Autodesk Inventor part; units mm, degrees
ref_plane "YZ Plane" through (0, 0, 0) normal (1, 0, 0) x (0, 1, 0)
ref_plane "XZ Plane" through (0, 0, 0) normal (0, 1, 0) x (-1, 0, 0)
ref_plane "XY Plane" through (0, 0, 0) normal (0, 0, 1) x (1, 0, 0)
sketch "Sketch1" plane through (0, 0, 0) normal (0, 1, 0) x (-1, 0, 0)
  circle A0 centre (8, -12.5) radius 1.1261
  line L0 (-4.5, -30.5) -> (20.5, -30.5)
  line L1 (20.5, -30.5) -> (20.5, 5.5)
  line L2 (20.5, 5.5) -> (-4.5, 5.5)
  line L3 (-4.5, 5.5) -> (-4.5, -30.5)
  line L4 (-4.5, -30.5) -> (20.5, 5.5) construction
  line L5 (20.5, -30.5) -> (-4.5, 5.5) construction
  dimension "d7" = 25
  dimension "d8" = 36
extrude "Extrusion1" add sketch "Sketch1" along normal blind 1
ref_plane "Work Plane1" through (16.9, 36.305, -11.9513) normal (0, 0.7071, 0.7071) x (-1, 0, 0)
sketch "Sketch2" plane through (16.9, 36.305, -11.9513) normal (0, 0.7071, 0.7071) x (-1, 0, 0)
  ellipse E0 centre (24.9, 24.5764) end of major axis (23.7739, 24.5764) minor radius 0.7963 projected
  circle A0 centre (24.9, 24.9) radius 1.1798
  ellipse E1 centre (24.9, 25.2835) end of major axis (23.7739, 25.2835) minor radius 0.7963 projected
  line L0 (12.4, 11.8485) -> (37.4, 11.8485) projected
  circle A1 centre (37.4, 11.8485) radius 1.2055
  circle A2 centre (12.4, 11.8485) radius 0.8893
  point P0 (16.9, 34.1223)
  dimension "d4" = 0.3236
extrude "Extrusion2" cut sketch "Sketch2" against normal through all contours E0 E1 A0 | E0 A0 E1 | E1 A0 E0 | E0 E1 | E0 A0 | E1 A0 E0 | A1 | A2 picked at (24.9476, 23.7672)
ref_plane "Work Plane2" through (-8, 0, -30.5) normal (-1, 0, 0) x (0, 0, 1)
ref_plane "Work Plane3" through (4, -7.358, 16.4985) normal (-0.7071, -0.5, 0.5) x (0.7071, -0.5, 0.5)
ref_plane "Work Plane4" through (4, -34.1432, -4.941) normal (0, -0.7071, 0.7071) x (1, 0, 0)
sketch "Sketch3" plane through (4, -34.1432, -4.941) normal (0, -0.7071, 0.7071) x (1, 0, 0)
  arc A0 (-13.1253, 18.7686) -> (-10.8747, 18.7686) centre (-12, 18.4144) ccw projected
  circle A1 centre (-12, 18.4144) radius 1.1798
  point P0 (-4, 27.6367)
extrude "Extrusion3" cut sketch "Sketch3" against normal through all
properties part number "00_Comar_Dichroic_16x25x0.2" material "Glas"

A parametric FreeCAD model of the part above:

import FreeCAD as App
import Part
import Sketcher

V = App.Vector


def add_polygon(sketch, points):
    """Adds a closed chain of lines whose ends are joined by coincident constraints."""
    first, n = sketch.GeometryCount, len(points)
    for a, b in zip(points, points[1:] + points[:1]):
        sketch.addGeometry(Part.LineSegment(App.Vector(*a, 0), App.Vector(*b, 0)), False)
    for i in range(n):
        sketch.addConstraint(Sketcher.Constraint("Coincident", first + i, 2, first + (i + 1) % n, 1))

doc = App.newDocument("Part")
body = doc.addObject("PartDesign::Body", "Body")

# Sketch on XZ plane
sketch1 = doc.addObject("Sketcher::SketchObject", "Sketch")
body.addObject(sketch1)
sketch1.AttachmentSupport = (doc.XZ_Plane, [""])
sketch1.MapMode = "FlatFace"
add_polygon(sketch1, [(4.5, 5.5), (4.5, -30.5), (-20.5, -30.5), (-20.5, 5.5)])  # lines 0-3
sketch1.addGeometry(Part.Circle(V(-8, -12.5, 0), V(0, 0, 1), 1.1), False)  # 4
sketch1.addConstraint([
    Sketcher.Constraint("Vertical", 0),
    Sketcher.Constraint("Horizontal", 1),
    Sketcher.Constraint("Vertical", 2),
    Sketcher.Constraint("Horizontal", 3),
    Sketcher.Constraint("DistanceX", 1, 2, 1, 1, 25.0),
    Sketcher.Constraint("DistanceY", 0, 2, 0, 1, 36.0),
    Sketcher.Constraint("DistanceX", 4, 3, -1, 1, 8.0),
    Sketcher.Constraint("DistanceY", 0, 2, 4, 3, 18.0),
    Sketcher.Constraint("Diameter", 4, 2.2522),
    Sketcher.Constraint("DistanceY", 4, 3, -1, 1, 12.5),
    Sketcher.Constraint("DistanceX", -1, 1, 0, 2, 4.5),
])
pad1 = doc.addObject("PartDesign::Pad", "Pad")
body.addObject(pad1)
pad1.Profile = sketch1
pad1.Length = 1
pad1.Reversed = True

# Sketch on an angled plane
sketch2 = doc.addObject("Sketcher::SketchObject", "Sketch001")
body.addObject(sketch2)
sketch2.Placement = App.Placement(V(16.9, 36.305, -11.9513), App.Rotation(V(-1, 0, 0), V(0, -0.707106781, 0.707106781), V(0, 0.707106781, 0.707106781), "ZXY"))
sketch2.addGeometry([
    Part.Circle(V(24.9, 24.9, 0), V(0, 0, 1), 1.2),
    Part.Circle(V(37.4, 11.8, 0), V(0, 0, 1), 1.2),
    Part.Circle(V(12.4, 11.8, 0), V(0, 0, 1), 0.9),
], False)
sketch2.addConstraint([
    Sketcher.Constraint("Horizontal", 1, 3, 2, 3),
    Sketcher.Constraint("Diameter", 1, 2.411),
    Sketcher.Constraint("DistanceX", 2, 3, 1, 3, 25.0),
    Sketcher.Constraint("Diameter", 0, 2.3596),
    Sketcher.Constraint("Diameter", 2, 1.7786),
    Sketcher.Constraint("DistanceX", -1, 1, 0, 3, 24.9),
    Sketcher.Constraint("DistanceY", -1, 1, 0, 3, 24.9),
    Sketcher.Constraint("DistanceX", -1, 1, 1, 3, 37.4),
    Sketcher.Constraint("DistanceY", -1, 1, 1, 3, 11.8485),
])
pocket1 = doc.addObject("PartDesign::Pocket", "Pocket")
body.addObject(pocket1)
pocket1.Profile = sketch2
pocket1.Type = "ThroughAll"

# Sketch on an angled plane
sketch3 = doc.addObject("Sketcher::SketchObject", "Sketch002")
body.addObject(sketch3)
sketch3.Placement = App.Placement(V(4, -34.1432, -4.941), App.Rotation(V(1, 0, 0), V(0, 0.707106781, 0.707106781), V(0, -0.707106781, 0.707106781), "ZXY"))
sketch3.addGeometry(Part.Circle(V(-12, 18.4, 0), V(0, 0, 1), 1.2), False)
sketch3.addConstraint([
    Sketcher.Constraint("DistanceX", 0, 3, -1, 1, 12.0),
    Sketcher.Constraint("Diameter", 0, 2.3595),
    Sketcher.Constraint("DistanceY", -1, 1, 0, 3, 18.4144),
])
pocket2 = doc.addObject("PartDesign::Pocket", "Pocket001")
body.addObject(pocket2)
pocket2.Profile = sketch3
pocket2.Type = "ThroughAll"

doc.recompute()
